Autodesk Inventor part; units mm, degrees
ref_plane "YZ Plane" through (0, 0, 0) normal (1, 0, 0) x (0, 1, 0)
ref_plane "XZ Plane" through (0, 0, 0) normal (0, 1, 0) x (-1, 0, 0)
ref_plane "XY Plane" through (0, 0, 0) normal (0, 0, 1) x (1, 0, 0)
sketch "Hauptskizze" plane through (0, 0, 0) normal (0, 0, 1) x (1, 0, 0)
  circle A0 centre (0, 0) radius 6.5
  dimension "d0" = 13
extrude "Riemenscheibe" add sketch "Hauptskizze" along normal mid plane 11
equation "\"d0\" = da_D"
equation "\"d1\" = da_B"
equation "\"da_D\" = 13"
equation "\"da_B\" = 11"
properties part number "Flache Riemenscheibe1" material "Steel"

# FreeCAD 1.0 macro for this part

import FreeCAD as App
import Part
import Sketcher

doc = App.newDocument("Part")
body = doc.addObject("PartDesign::Body", "Body")

# Sketch on XY plane
sketch1 = body.newObject("Sketcher::SketchObject", "Sketch")
sketch1.AttachmentSupport = (doc.getObject("XY_Plane"), [""])
sketch1.MapMode = "FlatFace"
sketch1.addGeometry(Part.Circle(App.Vector(0, 0, 0), App.Vector(0, 0, 1), 6.5), False)
sketch1.addConstraint([
    Sketcher.Constraint("Coincident", 0, 3, -1, 1),
    Sketcher.Constraint("Diameter", 0, 13.0),
])
pad1 = body.newObject("PartDesign::Pad", "Pad")
pad1.Profile = sketch1
pad1.Length = 11
pad1.Midplane = True

doc.recompute()
